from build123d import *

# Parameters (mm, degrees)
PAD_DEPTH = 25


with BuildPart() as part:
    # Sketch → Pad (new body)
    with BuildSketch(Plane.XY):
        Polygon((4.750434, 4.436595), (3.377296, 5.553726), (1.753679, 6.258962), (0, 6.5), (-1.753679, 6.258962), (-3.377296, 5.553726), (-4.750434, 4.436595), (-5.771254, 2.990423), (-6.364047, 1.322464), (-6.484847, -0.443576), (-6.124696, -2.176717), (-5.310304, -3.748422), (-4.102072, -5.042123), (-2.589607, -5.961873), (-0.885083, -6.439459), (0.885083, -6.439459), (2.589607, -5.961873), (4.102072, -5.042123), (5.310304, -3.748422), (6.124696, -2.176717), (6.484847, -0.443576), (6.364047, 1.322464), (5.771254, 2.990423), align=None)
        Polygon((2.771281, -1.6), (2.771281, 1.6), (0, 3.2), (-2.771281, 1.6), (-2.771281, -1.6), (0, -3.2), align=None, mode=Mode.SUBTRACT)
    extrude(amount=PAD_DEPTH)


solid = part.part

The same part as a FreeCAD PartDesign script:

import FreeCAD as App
import Part
import Sketcher
from FreeCAD import Vector
Q = App.Units.Quantity


def add_polygon(sketch, points):
    """Adds a closed chain of lines whose ends are joined by coincident constraints."""
    first, n = sketch.GeometryCount, len(points)
    for a, b in zip(points, points[1:] + points[:1]):
        sketch.addGeometry(Part.LineSegment(App.Vector(*a, 0), App.Vector(*b, 0)), False)
    for i in range(n):
        sketch.addConstraint(Sketcher.Constraint("Coincident", first + i, 2, first + (i + 1) % n, 1))

doc = App.newDocument("Part")
body = doc.addObject("PartDesign::Body", "Body")

# Sketch on XY plane
sketch1 = doc.addObject("Sketcher::SketchObject", "Sketch")
body.addObject(sketch1)
sketch1.AttachmentSupport = (doc.XY_Plane, [""])
sketch1.MapMode = "FlatFace"
add_polygon(sketch1, [(4.8, 4.4), (3.4, 5.6), (1.8, 6.3), (0, 6.5), (-1.8, 6.3), (-3.4, 5.6), (-4.8, 4.4), (-5.8, 3), (-6.4, 1.3), (-6.5, -0.4), (-6.1, -2.2), (-5.3, -3.7), (-4.1, -5), (-2.6, -6), (-0.9, -6.4), (0.9, -6.4), (2.6, -6), (4.1, -5), (5.3, -3.7), (6.1, -2.2), (6.5, -0.4), (6.4, 1.3), (5.8, 3)])  # lines 0-22
add_polygon(sketch1, [(2.8, 1.6), (2.8, -1.6), (0, -3.2), (-2.8, -1.6), (-2.8, 1.6), (0, 3.2)])  # lines 23-28
sketch1.addConstraint([
    Sketcher.Constraint("Horizontal", 14),
    Sketcher.Constraint("Vertical", 23),
    Sketcher.Constraint("Vertical", 26),
    Sketcher.Constraint("Symmetric", 23, 2, 26, 2, -1, 1),
    Sketcher.Constraint("Symmetric", 24, 2, 27, 2, -1, 1),
    Sketcher.Constraint("Symmetric", 1, 2, 3, 2, -2),
    Sketcher.Constraint("Symmetric", 0, 2, 4, 2, -2),
    Sketcher.Constraint("Symmetric", 12, 2, 15, 2, -2),
    Sketcher.Constraint("Symmetric", 11, 2, 16, 2, -2),
    Sketcher.Constraint("Symmetric", 10, 2, 17, 2, -2),
    Sketcher.Constraint("Symmetric", 9, 2, 18, 2, -2),
    Sketcher.Constraint("Symmetric", 8, 2, 19, 2, -2),
    Sketcher.Constraint("Symmetric", 7, 2, 20, 2, -2),
    Sketcher.Constraint("Symmetric", 6, 2, 21, 2, -2),
    Sketcher.Constraint("Symmetric", 5, 2, 22, 2, -2),
    Sketcher.Constraint("PointOnObject", 2, 2, -2),
    Sketcher.Constraint("PointOnObject", 24, 2, -2),
    Sketcher.Constraint("Parallel", 25, 28),
    Sketcher.Constraint("Horizontal", 23, 2, 25, 2),
    Sketcher.Constraint("Equal", 0, 1),
    Sketcher.Constraint("Equal", 1, 2),
    Sketcher.Constraint("Equal", 5, 6),
    Sketcher.Constraint("Equal", 6, 7),
    Sketcher.Constraint("Equal", 7, 8),
    Sketcher.Constraint("Equal", 8, 9),
    Sketcher.Constraint("Equal", 9, 10),
    Sketcher.Constraint("Equal", 10, 11),
    Sketcher.Constraint("Equal", 11, 12),
    Sketcher.Constraint("Equal", 12, 13),
    Sketcher.Constraint("Equal", 13, 15),
    Sketcher.Constraint("Angle", 24, Q("-149.999997 deg")),
    Sketcher.Constraint("DistanceY", 23, 2, 23, 1, 3.2),
    Sketcher.Constraint("Distance", 24, 3.2),
    Sketcher.Constraint("DistanceY", -1, 1, 2, 2, 6.5),
    Sketcher.Constraint("DistanceY", 8, 2, 6, 2, 3.433999),
    Sketcher.Constraint("DistanceY", 7, 2, 3, 2, 4.936498),
    Sketcher.Constraint("DistanceX", 8, 2, 7, 2, 0.1208),
    Sketcher.Constraint("DistanceX", 9, 2, 4, 2, 2.7474),
    Sketcher.Constraint("DistanceY", 11, 2, 10, 2, 1.293701),
    Sketcher.Constraint("DistanceX", 14, 1, 14, 2, 1.770166),
    Sketcher.Constraint("DistanceX", -1, 1, 1, 2, 1.753679),
    Sketcher.Constraint("DistanceX", 11, 2, -1, 1, 4.102072),
    Sketcher.Constraint("DistanceY", 13, 2, -1, 1, 6.439459),
    Sketcher.Constraint("DistanceX", 4, 2, 0, 2, 6.754592),
    Sketcher.Constraint("DistanceX", 5, 2, 4, 2, 1.373138),
    Sketcher.Constraint("DistanceY", 5, 2, 4, 2, 1.117131),
])
pad1 = doc.addObject("PartDesign::Pad", "Pad")
body.addObject(pad1)
pad1.Profile = sketch1
pad1.Length = 25

doc.recompute()
